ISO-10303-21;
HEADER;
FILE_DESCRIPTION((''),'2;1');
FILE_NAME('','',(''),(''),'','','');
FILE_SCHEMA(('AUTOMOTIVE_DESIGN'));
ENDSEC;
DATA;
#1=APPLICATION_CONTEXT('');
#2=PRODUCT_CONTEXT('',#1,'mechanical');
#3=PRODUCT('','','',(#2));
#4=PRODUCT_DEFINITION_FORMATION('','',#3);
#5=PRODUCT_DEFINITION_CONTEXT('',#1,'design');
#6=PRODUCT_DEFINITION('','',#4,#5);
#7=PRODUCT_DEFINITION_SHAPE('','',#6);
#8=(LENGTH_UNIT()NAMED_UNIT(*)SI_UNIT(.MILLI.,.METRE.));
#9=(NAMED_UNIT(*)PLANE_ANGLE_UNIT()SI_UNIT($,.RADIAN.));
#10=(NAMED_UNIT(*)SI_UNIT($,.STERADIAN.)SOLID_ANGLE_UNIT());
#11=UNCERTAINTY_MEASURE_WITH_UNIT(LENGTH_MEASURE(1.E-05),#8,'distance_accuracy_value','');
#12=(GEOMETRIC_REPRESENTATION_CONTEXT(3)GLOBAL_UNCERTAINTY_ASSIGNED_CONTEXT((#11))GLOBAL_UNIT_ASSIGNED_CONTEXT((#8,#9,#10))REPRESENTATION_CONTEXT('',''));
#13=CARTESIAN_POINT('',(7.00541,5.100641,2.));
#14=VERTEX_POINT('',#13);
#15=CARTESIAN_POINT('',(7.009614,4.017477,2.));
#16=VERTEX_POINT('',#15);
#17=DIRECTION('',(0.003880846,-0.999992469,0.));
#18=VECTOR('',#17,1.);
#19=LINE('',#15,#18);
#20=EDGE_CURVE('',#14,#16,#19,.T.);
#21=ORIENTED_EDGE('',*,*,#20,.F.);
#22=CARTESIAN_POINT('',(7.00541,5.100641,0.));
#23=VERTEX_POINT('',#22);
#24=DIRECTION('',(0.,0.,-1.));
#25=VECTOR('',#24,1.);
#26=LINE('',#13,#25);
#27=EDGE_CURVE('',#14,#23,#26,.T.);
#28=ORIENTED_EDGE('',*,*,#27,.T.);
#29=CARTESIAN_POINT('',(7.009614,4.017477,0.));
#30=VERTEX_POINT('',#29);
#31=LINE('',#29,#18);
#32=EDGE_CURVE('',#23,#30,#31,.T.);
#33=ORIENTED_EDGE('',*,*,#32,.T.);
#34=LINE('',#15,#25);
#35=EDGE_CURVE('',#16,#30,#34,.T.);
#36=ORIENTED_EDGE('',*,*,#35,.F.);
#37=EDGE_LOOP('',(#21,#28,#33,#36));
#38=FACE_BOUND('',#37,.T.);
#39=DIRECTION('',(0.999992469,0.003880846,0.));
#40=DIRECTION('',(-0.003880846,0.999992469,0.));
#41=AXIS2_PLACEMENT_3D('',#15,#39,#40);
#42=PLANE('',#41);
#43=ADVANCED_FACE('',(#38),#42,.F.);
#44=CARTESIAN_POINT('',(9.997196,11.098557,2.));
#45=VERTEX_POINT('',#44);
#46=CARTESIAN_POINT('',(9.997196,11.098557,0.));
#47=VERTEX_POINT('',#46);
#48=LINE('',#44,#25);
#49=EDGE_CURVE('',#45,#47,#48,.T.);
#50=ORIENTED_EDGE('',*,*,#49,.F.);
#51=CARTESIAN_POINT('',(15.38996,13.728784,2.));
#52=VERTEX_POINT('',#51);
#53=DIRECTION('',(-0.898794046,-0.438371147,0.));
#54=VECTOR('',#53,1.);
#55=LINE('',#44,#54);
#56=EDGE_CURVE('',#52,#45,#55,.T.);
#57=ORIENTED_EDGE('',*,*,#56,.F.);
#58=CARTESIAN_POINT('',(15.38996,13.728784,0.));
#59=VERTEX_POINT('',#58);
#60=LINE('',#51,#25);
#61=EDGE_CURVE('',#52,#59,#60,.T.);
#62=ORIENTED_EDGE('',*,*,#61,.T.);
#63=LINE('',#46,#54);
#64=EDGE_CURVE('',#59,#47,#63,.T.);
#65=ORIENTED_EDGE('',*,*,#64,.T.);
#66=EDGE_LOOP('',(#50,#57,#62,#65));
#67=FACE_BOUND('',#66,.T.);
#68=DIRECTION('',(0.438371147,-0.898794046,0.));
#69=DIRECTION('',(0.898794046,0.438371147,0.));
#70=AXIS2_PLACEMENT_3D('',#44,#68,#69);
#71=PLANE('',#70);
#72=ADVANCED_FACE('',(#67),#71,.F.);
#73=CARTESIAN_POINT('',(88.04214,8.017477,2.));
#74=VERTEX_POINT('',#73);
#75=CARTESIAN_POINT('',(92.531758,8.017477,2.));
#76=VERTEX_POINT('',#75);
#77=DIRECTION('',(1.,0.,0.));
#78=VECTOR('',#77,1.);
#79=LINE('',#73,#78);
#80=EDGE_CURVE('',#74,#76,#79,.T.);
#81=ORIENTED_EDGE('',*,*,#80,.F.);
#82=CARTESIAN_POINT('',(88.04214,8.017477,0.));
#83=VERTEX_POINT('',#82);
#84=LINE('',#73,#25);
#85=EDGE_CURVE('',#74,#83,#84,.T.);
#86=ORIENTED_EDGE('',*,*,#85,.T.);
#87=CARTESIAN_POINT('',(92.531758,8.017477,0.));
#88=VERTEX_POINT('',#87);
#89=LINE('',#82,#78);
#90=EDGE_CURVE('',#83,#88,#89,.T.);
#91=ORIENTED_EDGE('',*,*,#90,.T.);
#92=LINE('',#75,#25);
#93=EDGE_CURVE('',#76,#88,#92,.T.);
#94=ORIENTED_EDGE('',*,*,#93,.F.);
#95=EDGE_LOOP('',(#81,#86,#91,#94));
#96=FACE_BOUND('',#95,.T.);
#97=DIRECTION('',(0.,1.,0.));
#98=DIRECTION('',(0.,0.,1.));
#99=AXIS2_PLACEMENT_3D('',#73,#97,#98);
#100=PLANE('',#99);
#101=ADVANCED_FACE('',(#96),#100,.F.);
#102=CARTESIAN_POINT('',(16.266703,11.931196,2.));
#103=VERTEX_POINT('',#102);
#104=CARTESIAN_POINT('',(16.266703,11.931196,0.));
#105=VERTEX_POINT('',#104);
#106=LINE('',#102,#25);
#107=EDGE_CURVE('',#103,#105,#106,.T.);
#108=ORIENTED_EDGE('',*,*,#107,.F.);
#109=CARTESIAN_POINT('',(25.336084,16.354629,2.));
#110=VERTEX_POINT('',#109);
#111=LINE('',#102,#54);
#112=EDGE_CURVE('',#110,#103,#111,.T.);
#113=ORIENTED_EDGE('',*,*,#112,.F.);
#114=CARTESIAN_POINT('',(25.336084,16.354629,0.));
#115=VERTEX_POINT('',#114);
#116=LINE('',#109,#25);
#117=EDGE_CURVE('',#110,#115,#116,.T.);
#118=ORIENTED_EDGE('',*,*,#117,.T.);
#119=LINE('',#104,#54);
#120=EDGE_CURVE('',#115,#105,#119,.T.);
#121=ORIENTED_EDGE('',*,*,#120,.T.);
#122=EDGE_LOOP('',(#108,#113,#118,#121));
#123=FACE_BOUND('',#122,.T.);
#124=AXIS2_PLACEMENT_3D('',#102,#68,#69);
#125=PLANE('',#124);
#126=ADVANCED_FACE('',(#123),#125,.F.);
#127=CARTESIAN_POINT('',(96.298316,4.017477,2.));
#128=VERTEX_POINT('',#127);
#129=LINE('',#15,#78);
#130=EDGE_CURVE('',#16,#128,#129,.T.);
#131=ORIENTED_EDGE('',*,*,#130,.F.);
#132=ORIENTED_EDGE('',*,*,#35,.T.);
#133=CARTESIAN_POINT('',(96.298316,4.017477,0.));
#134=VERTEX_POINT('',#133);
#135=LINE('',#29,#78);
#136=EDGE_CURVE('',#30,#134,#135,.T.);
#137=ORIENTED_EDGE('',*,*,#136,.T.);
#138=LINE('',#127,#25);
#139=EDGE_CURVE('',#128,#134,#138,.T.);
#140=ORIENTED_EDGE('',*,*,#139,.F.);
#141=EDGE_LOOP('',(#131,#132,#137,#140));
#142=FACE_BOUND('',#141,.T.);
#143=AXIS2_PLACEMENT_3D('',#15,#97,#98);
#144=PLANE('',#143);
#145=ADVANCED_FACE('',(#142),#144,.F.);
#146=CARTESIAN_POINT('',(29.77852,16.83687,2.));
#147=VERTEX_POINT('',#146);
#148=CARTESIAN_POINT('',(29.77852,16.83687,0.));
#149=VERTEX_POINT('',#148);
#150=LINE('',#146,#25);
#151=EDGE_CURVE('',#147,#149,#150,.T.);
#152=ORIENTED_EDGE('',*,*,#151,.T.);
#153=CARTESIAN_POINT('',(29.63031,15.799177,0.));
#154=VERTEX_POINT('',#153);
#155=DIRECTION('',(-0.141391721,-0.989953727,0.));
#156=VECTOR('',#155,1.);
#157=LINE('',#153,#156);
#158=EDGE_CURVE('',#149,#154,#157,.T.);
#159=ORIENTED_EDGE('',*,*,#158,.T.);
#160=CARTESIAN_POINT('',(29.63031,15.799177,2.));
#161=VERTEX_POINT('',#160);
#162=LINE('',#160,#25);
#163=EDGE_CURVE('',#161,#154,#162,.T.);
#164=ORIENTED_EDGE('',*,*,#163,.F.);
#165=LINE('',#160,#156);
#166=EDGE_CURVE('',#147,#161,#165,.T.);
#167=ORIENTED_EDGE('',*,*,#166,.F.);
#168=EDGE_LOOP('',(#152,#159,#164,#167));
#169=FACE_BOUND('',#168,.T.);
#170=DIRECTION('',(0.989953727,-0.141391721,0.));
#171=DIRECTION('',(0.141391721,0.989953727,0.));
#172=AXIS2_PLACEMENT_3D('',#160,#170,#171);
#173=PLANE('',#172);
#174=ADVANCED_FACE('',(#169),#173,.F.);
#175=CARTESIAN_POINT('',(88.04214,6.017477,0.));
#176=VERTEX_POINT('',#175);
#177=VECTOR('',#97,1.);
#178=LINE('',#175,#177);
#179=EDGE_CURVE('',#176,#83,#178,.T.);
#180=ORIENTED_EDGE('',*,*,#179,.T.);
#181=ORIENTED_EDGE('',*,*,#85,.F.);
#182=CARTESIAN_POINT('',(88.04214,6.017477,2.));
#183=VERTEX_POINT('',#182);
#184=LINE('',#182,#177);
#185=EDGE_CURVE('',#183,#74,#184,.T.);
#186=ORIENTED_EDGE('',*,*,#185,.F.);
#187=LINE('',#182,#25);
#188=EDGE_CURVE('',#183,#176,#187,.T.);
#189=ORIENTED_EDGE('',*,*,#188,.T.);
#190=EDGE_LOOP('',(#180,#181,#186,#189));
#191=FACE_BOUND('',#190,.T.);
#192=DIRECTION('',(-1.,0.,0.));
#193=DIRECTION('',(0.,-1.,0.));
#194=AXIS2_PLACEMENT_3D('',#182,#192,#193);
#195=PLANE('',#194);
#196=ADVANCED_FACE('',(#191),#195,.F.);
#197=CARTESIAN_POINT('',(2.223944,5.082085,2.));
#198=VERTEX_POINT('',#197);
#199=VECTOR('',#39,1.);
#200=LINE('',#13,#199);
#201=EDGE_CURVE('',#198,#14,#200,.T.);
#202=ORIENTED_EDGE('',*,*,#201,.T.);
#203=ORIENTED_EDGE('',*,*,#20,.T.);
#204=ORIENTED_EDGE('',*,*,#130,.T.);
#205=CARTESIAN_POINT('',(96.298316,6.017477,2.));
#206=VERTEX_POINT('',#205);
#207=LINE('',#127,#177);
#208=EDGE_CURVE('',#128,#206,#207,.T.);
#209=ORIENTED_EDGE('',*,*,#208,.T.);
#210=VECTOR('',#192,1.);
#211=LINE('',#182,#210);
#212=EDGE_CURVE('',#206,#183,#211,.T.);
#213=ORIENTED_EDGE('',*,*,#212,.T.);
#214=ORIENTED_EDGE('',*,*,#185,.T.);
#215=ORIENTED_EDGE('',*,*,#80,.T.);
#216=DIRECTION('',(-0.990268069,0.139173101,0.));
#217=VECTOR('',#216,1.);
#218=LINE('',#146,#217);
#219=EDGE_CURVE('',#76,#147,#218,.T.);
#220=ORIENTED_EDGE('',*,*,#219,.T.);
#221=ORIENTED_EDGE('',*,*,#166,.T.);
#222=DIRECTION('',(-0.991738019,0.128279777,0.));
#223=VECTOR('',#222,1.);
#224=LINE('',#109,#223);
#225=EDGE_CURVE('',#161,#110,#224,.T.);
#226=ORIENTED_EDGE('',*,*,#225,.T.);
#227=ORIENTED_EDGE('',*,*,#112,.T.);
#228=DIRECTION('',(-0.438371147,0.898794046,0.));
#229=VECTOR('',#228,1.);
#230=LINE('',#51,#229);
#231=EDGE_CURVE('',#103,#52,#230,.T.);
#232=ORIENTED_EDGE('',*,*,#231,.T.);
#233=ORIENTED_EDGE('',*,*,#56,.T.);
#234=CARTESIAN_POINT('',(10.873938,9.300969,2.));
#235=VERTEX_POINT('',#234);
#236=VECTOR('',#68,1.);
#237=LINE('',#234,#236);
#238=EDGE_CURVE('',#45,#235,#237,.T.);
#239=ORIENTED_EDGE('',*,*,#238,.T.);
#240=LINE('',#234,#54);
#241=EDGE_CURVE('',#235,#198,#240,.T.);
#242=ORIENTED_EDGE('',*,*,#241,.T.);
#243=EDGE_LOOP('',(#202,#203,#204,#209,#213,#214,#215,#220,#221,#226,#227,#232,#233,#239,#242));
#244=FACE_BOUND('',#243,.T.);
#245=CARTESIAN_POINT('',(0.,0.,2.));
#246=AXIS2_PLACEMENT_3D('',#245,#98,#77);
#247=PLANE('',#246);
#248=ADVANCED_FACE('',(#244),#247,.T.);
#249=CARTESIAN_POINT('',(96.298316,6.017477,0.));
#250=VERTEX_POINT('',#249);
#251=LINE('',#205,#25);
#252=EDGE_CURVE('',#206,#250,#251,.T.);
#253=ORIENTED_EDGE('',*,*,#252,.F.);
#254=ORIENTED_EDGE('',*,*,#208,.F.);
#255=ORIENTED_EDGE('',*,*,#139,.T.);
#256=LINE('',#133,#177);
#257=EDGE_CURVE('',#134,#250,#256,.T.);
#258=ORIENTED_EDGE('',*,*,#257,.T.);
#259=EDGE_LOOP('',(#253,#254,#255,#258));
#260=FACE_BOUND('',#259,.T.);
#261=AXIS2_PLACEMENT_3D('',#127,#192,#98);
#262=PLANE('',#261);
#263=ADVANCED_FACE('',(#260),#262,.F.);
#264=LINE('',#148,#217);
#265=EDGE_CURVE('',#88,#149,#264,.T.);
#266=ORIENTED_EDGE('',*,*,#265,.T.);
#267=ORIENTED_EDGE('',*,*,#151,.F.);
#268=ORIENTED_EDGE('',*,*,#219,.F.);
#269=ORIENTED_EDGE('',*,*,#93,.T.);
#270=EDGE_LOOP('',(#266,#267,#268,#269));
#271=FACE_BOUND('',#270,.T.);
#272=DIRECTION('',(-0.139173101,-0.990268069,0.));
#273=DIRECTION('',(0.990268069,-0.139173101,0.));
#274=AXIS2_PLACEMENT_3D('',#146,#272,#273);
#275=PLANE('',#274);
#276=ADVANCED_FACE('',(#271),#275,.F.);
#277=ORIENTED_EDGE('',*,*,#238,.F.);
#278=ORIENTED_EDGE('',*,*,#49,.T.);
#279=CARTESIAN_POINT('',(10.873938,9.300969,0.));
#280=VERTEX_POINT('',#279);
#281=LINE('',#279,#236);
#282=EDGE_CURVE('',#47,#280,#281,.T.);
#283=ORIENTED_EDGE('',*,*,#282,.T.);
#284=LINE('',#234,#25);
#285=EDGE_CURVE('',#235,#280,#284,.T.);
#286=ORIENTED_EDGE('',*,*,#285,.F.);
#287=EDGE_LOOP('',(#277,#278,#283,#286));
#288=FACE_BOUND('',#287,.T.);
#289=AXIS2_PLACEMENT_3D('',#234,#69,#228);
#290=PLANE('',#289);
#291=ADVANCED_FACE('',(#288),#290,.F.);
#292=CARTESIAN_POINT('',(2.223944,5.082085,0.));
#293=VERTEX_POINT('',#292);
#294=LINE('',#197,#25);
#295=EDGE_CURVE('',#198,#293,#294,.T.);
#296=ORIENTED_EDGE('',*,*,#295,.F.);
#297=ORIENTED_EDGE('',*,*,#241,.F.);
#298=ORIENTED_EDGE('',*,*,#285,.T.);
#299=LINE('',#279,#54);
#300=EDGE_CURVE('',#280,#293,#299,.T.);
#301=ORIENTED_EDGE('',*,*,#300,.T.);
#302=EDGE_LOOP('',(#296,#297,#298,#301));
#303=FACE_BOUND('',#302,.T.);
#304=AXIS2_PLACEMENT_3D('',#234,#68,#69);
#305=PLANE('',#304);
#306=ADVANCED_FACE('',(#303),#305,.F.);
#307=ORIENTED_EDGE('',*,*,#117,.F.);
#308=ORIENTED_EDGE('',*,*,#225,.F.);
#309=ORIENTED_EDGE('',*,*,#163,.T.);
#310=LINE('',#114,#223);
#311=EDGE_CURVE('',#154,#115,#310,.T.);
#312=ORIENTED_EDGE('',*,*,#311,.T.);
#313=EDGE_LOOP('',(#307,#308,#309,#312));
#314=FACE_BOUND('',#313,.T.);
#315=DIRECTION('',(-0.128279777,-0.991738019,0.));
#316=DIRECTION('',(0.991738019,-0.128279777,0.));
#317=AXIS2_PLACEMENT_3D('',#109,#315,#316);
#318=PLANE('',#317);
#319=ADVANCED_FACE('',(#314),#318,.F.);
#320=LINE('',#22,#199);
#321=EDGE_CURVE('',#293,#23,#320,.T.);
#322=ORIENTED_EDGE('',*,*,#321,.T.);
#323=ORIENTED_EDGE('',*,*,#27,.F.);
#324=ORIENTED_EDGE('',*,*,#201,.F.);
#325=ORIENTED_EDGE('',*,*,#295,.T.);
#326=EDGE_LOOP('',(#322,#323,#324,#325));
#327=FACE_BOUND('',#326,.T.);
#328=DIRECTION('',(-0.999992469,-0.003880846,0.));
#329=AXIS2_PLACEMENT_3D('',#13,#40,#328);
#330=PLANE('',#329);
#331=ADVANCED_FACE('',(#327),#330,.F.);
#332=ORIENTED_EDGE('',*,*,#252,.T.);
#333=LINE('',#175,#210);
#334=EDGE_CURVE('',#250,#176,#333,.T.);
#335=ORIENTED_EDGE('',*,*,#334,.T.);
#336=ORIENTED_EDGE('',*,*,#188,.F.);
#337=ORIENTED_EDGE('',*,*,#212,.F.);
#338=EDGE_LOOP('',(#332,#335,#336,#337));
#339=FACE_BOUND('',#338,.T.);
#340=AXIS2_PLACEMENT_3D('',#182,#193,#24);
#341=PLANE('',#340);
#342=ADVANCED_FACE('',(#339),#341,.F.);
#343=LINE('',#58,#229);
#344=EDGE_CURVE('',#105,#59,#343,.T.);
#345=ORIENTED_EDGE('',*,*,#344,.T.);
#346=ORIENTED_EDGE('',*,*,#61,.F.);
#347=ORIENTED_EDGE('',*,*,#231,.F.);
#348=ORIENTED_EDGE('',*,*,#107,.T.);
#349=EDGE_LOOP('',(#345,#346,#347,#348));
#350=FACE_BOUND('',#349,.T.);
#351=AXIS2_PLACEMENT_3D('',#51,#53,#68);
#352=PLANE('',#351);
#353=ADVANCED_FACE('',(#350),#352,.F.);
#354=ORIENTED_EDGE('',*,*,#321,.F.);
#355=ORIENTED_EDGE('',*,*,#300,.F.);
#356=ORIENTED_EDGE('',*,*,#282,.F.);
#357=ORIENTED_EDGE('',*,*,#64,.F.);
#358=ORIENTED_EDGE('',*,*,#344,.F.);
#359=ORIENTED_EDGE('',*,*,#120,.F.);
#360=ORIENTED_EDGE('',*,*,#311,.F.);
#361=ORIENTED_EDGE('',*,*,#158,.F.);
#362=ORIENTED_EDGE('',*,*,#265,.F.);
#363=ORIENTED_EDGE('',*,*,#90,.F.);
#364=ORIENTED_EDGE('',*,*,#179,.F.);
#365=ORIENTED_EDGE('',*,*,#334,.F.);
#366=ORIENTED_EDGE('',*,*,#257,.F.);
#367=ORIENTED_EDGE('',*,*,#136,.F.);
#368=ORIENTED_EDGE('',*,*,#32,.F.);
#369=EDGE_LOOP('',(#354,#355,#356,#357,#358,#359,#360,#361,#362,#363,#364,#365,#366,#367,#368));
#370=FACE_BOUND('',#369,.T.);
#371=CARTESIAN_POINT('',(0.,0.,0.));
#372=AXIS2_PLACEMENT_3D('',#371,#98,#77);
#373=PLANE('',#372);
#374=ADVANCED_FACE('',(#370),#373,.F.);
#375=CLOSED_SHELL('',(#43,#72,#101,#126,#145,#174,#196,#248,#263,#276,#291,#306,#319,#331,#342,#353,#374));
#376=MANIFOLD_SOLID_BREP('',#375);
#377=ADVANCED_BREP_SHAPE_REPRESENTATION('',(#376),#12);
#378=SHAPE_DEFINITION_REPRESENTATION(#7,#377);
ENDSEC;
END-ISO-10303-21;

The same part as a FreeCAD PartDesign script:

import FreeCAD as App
import Part
import Sketcher

V = App.Vector
Q = App.Units.Quantity


def add_polygon(sketch, points):
    """Adds a closed chain of lines whose ends are joined by coincident constraints."""
    first, n = sketch.GeometryCount, len(points)
    for a, b in zip(points, points[1:] + points[:1]):
        sketch.addGeometry(Part.LineSegment(App.Vector(*a, 0), App.Vector(*b, 0)), False)
    for i in range(n):
        sketch.addConstraint(Sketcher.Constraint("Coincident", first + i, 2, first + (i + 1) % n, 1))

doc = App.newDocument("Part")
body = doc.addObject("PartDesign::Body", "Body")

sketch1 = body.newObject("Sketcher::SketchObject", "Sketch")
sketch1.AttachmentSupport = (doc.getObject("XY_Plane"), [""])
sketch1.MapMode = "FlatFace"
add_polygon(sketch1, [(9.997196, 11.098557), (10.873938, 9.300969), (2.223944, 5.082085), (7.00541, 5.100641), (7.009614, 4.017477), (96.298316, 4.017477), (96.298316, 6.017477), (88.04214, 6.017477), (88.04214, 8.017477), (92.531758, 8.017477), (29.77852, 16.83687), (29.63031, 15.799177), (25.336084, 16.354629), (16.266703, 11.931196), (15.38996, 13.728784)])
sketch1.addConstraint([
    Sketcher.Constraint("Horizontal", 4),
    Sketcher.Constraint("Vertical", 5),
    Sketcher.Constraint("Horizontal", 6),
    Sketcher.Constraint("Vertical", 7),
    Sketcher.Constraint("Horizontal", 8),
    Sketcher.Constraint("DistanceY", 5, 1, 5, 2, Q("2 mm")),
    Sketcher.Constraint("DistanceY", 7, 1, 7, 2, Q("2 mm")),
    Sketcher.Constraint("Distance", 0, Q("2 mm")),
    Sketcher.Constraint("Distance", 13, Q("2 mm")),
    Sketcher.Constraint("Distance", 14, Q("6 mm")),
    Sketcher.Constraint("Distance", 11, Q("4.33 mm")),
    Sketcher.Constraint("Distance", 1, Q("9.624 mm")),
    Sketcher.Constraint("Distance", 2, Q("4.781502 mm")),
    Sketcher.Constraint("DistanceX", 8, 1, 8, 2, Q("4.489618 mm")),
    Sketcher.Constraint("DistanceX", 0, 2, 6, 2, Q("77.168201 mm")),
    Sketcher.Constraint("DistanceY", 0, 2, 9, 2, Q("7.535901 mm")),
    Sketcher.Constraint("DistanceX", 2, 2, 10, 2, Q("22.6249 mm")),
    Sketcher.Constraint("DistanceY", 3, 2, 10, 2, Q("11.7817 mm")),
    Sketcher.Constraint("Distance", 9, Q("63.36995 mm")),
    Sketcher.Constraint("Distance", 12, Q("10.090612 mm")),
    Sketcher.Constraint("DistanceX", 4, 1, 4, 2, Q("89.288702 mm")),
    Sketcher.Constraint("DistanceX", 6, 2, 6, 1, Q("8.256176 mm")),
    Sketcher.Constraint("DistanceX", -1, 1, 0, 2, Q("10.873938 mm")),
    Sketcher.Constraint("DistanceY", -1, 1, 0, 2, Q("9.300969 mm")),
    Sketcher.Constraint("DistanceX", -1, 1, 2, 2, Q("7.00541 mm")),
    Sketcher.Constraint("DistanceY", -1, 1, 2, 2, Q("5.100641 mm")),
    Sketcher.Constraint("DistanceX", -1, 1, 9, 2, Q("29.77852 mm")),
    Sketcher.Constraint("DistanceY", -1, 1, 11, 2, Q("16.354629 mm")),
    Sketcher.Constraint("DistanceX", -1, 1, 13, 2, Q("15.38996 mm")),
    Sketcher.Constraint("DistanceX", 12, 2, 11, 2, Q("9.069382 mm")),
])
pad1 = body.newObject("PartDesign::Pad", "Pad")
pad1.Profile = sketch1
pad1.Length = 2

doc.recompute()
